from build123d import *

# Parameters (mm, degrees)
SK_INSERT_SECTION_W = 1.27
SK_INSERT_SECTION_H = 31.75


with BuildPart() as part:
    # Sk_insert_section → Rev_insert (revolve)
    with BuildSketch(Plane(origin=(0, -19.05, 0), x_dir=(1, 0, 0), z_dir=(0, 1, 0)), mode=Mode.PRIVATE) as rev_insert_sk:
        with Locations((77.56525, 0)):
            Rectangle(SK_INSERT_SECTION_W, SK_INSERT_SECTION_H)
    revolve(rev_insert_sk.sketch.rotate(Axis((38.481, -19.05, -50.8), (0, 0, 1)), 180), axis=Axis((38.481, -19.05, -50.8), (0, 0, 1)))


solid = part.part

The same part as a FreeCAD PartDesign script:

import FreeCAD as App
import Part
import Sketcher
from FreeCAD import Vector
Q = App.Units.Quantity


def add_polygon(sketch, points):
    """Adds a closed chain of lines whose ends are joined by coincident constraints."""
    first, n = sketch.GeometryCount, len(points)
    for a, b in zip(points, points[1:] + points[:1]):
        sketch.addGeometry(Part.LineSegment(App.Vector(*a, 0), App.Vector(*b, 0)), False)
    for i in range(n):
        sketch.addConstraint(Sketcher.Constraint("Coincident", first + i, 2, first + (i + 1) % n, 1))

doc = App.newDocument("Part")
body = doc.addObject("PartDesign::Body", "Body")

sketch1 = body.newObject("Sketcher::SketchObject", "Sketch")
sketch1.AttachmentSupport = (doc.getObject("XZ_Plane"), [""])
sketch1.MapMode = "FlatFace"
sketch1.AttachmentOffset = App.Placement(Vector(0, 0, 0.75 * 25.4), App.Rotation())
add_polygon(sketch1, [(76.9, -15.9), (76.9, 15.9), (78.2, 15.9), (78.2, -15.9)])
sketch1.addGeometry(Part.LineSegment(Vector(38.5, -15.9, 0), Vector(38.5, 15.9, 0)), True)
sketch1.addConstraint(Sketcher.Constraint("Vertical", 0))
sketch1.addConstraint(Sketcher.Constraint("Horizontal", 1))
sketch1.addConstraint(Sketcher.Constraint("Vertical", 2))
sketch1.addConstraint(Sketcher.Constraint("Horizontal", 3))
sketch1.addConstraint(Sketcher.Constraint("Vertical", 4))
sketch1.addConstraint(Sketcher.Constraint("Horizontal", 3, 2, 4, 1))
sketch1.addConstraint(Sketcher.Constraint("Horizontal", 1, 2, 4, 2))
sketch1.addConstraint(Sketcher.Constraint("DistanceX", 1, 1, 1, 2, Q("0.05 in")))
sketch1.addConstraint(Sketcher.Constraint("DistanceY", 0, 1, 0, 2, Q("1.25 in")))
sketch1.addConstraint(Sketcher.Constraint("DistanceY", -1, 1, 0, 2, Q("0.625 in")))
sketch1.addConstraint(Sketcher.Constraint("DistanceX", -1, 1, 4, 1, Q("1.515 in")))
sketch1.addConstraint(Sketcher.Constraint("DistanceX", -1, 1, 0, 2, 76.93025))
revolution = body.newObject("PartDesign::Revolution", "Revolution")
revolution.Profile = sketch1
revolution.ReferenceAxis = (sketch1, ["Axis0"])
revolution.Angle = 360

doc.recompute()
